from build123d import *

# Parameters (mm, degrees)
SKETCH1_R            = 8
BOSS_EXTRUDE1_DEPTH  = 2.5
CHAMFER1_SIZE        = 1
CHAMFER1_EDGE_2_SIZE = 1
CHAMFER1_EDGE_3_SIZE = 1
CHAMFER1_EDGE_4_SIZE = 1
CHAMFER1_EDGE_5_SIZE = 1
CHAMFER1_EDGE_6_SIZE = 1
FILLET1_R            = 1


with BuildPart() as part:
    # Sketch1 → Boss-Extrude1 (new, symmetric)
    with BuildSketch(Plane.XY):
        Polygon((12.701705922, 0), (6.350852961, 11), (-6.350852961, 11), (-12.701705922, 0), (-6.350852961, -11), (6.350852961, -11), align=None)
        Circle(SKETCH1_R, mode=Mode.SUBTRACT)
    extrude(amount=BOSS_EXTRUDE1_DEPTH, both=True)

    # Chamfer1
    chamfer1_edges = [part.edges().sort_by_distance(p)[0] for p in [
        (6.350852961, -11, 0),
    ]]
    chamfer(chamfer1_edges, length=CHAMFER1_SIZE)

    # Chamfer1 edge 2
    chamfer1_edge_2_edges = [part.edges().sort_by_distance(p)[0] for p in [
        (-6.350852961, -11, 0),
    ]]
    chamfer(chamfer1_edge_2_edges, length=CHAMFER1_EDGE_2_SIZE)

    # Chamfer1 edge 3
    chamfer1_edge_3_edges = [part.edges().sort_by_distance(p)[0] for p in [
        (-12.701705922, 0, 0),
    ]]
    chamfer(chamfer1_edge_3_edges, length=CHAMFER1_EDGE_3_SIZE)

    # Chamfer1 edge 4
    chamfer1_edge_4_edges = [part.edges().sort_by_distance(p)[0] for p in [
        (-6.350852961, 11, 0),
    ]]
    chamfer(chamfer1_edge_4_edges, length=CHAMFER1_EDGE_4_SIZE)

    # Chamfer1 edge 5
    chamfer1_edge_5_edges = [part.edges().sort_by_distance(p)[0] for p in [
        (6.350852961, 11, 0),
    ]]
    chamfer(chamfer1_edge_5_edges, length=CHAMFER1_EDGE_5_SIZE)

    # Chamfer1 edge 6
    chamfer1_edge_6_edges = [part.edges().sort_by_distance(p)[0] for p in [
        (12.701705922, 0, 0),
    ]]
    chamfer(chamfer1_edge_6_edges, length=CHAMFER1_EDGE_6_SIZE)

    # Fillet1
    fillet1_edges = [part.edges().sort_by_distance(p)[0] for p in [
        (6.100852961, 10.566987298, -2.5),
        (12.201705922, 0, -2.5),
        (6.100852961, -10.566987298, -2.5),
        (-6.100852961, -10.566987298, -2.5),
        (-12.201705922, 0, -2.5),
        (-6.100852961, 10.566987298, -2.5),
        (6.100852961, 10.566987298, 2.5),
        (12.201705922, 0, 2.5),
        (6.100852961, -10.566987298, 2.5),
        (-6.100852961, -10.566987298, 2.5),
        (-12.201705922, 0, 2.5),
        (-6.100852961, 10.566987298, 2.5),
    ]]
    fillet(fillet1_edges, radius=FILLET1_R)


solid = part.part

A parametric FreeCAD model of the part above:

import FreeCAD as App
import Part
import Sketcher
Q = App.Units.Quantity


def edges_at(feature, points):
    """Names of the edges that pass closest to the given points."""
    edges = feature.Shape.Edges
    near = lambda p: min(range(len(edges)), key=lambda i: edges[i].distToShape(Part.Vertex(*p))[0])
    return sorted({f"Edge{near(p) + 1}" for p in points})

doc = App.newDocument("Part")
body = doc.addObject("PartDesign::Body", "Body")

# Sketch on XY plane
sketch1 = body.newObject("Sketcher::SketchObject", "Sketch")
sketch1.AttachmentSupport = (doc.getObject("XY_Plane"), [""])
sketch1.MapMode = "FlatFace"
sketch1.addGeometry(Part.LineSegment(App.Vector(13, 0, 0), App.Vector(6, 11, 0)), False)
sketch1.addGeometry(Part.LineSegment(App.Vector(6, 11, 0), App.Vector(-6, 11, 0)), False)
sketch1.addGeometry(Part.LineSegment(App.Vector(-6, 11, 0), App.Vector(-13, 0, 0)), False)
sketch1.addGeometry(Part.LineSegment(App.Vector(-13, 0, 0), App.Vector(-6, -11, 0)), False)
sketch1.addGeometry(Part.LineSegment(App.Vector(-6, -11, 0), App.Vector(6, -11, 0)), False)
sketch1.addGeometry(Part.LineSegment(App.Vector(6, -11, 0), App.Vector(13, 0, 0)), False)
sketch1.addGeometry(Part.Circle(App.Vector(0, 0, 0), App.Vector(0, 0, 1), 8), False)
sketch1.addConstraint(Sketcher.Constraint("Coincident", 0, 2, 1, 1))
sketch1.addConstraint(Sketcher.Constraint("Coincident", 1, 2, 2, 1))
sketch1.addConstraint(Sketcher.Constraint("Coincident", 2, 2, 3, 1))
sketch1.addConstraint(Sketcher.Constraint("Coincident", 3, 2, 4, 1))
sketch1.addConstraint(Sketcher.Constraint("Coincident", 4, 2, 5, 1))
sketch1.addConstraint(Sketcher.Constraint("Coincident", 5, 2, 0, 1))
sketch1.addConstraint(Sketcher.Constraint("Horizontal", 1))
sketch1.addConstraint(Sketcher.Constraint("Horizontal", 4))
sketch1.addConstraint(Sketcher.Constraint("Coincident", 6, 3, -1, 1))
sketch1.addConstraint(Sketcher.Constraint("Symmetric", 0, 2, 3, 2, -1, 1))
sketch1.addConstraint(Sketcher.Constraint("Symmetric", 2, 2, 5, 2, -1, 1))
sketch1.addConstraint(Sketcher.Constraint("PointOnObject", 2, 2, -1))
sketch1.addConstraint(Sketcher.Constraint("Parallel", 2, 5))
sketch1.addConstraint(Sketcher.Constraint("Vertical", 1, 2, 3, 2))
sketch1.addConstraint(Sketcher.Constraint("Diameter", 6, 16.0))
sketch1.addConstraint(Sketcher.Constraint("Angle", 0, Q("120 deg")))
sketch1.addConstraint(Sketcher.Constraint("DistanceY", -1, 1, 0, 2, 11.0))
sketch1.addConstraint(Sketcher.Constraint("DistanceX", 1, 2, 1, 1, 12.701706))
pad1 = body.newObject("PartDesign::Pad", "Pad")
pad1.Profile = sketch1
pad1.Length = 5
pad1.Midplane = True
doc.recompute()

chamfer = body.newObject("PartDesign::Chamfer", "Chamfer")
chamfer.Base = (pad1, edges_at(pad1, [(6.351, -11, 0)]))
chamfer.Size = 1
doc.recompute()

chamfer2 = body.newObject("PartDesign::Chamfer", "Chamfer001")
chamfer2.Base = (chamfer, edges_at(chamfer, [(-6.351, -11, 0)]))
chamfer2.Size = 1
doc.recompute()

chamfer3 = body.newObject("PartDesign::Chamfer", "Chamfer002")
chamfer3.Base = (chamfer2, edges_at(chamfer2, [(-12.702, 0, 0)]))
chamfer3.Size = 1
doc.recompute()

chamfer4 = body.newObject("PartDesign::Chamfer", "Chamfer003")
chamfer4.Base = (chamfer3, edges_at(chamfer3, [(-6.351, 11, 0)]))
chamfer4.Size = 1
doc.recompute()

chamfer5 = body.newObject("PartDesign::Chamfer", "Chamfer004")
chamfer5.Base = (chamfer4, edges_at(chamfer4, [(6.351, 11, 0)]))
chamfer5.Size = 1
doc.recompute()

chamfer6 = body.newObject("PartDesign::Chamfer", "Chamfer005")
chamfer6.Base = (chamfer5, edges_at(chamfer5, [(12.702, 0, 0)]))
chamfer6.Size = 1
doc.recompute()

fillet = body.newObject("PartDesign::Fillet", "Fillet")
fillet.Base = (chamfer6, edges_at(chamfer6, [
    (6.101, 10.567, -2.5),
    (12.202, 0, -2.5),
    (6.101, -10.567, -2.5),
    (-6.101, -10.567, -2.5),
    (-12.202, 0, -2.5),
    (-6.101, 10.567, -2.5),
    (6.101, 10.567, 2.5),
    (12.202, 0, 2.5),
    (6.101, -10.567, 2.5),
    (-6.101, -10.567, 2.5),
    (-12.202, 0, 2.5),
    (-6.101, 10.567, 2.5),
]))
fillet.Radius = 1

doc.recompute()
